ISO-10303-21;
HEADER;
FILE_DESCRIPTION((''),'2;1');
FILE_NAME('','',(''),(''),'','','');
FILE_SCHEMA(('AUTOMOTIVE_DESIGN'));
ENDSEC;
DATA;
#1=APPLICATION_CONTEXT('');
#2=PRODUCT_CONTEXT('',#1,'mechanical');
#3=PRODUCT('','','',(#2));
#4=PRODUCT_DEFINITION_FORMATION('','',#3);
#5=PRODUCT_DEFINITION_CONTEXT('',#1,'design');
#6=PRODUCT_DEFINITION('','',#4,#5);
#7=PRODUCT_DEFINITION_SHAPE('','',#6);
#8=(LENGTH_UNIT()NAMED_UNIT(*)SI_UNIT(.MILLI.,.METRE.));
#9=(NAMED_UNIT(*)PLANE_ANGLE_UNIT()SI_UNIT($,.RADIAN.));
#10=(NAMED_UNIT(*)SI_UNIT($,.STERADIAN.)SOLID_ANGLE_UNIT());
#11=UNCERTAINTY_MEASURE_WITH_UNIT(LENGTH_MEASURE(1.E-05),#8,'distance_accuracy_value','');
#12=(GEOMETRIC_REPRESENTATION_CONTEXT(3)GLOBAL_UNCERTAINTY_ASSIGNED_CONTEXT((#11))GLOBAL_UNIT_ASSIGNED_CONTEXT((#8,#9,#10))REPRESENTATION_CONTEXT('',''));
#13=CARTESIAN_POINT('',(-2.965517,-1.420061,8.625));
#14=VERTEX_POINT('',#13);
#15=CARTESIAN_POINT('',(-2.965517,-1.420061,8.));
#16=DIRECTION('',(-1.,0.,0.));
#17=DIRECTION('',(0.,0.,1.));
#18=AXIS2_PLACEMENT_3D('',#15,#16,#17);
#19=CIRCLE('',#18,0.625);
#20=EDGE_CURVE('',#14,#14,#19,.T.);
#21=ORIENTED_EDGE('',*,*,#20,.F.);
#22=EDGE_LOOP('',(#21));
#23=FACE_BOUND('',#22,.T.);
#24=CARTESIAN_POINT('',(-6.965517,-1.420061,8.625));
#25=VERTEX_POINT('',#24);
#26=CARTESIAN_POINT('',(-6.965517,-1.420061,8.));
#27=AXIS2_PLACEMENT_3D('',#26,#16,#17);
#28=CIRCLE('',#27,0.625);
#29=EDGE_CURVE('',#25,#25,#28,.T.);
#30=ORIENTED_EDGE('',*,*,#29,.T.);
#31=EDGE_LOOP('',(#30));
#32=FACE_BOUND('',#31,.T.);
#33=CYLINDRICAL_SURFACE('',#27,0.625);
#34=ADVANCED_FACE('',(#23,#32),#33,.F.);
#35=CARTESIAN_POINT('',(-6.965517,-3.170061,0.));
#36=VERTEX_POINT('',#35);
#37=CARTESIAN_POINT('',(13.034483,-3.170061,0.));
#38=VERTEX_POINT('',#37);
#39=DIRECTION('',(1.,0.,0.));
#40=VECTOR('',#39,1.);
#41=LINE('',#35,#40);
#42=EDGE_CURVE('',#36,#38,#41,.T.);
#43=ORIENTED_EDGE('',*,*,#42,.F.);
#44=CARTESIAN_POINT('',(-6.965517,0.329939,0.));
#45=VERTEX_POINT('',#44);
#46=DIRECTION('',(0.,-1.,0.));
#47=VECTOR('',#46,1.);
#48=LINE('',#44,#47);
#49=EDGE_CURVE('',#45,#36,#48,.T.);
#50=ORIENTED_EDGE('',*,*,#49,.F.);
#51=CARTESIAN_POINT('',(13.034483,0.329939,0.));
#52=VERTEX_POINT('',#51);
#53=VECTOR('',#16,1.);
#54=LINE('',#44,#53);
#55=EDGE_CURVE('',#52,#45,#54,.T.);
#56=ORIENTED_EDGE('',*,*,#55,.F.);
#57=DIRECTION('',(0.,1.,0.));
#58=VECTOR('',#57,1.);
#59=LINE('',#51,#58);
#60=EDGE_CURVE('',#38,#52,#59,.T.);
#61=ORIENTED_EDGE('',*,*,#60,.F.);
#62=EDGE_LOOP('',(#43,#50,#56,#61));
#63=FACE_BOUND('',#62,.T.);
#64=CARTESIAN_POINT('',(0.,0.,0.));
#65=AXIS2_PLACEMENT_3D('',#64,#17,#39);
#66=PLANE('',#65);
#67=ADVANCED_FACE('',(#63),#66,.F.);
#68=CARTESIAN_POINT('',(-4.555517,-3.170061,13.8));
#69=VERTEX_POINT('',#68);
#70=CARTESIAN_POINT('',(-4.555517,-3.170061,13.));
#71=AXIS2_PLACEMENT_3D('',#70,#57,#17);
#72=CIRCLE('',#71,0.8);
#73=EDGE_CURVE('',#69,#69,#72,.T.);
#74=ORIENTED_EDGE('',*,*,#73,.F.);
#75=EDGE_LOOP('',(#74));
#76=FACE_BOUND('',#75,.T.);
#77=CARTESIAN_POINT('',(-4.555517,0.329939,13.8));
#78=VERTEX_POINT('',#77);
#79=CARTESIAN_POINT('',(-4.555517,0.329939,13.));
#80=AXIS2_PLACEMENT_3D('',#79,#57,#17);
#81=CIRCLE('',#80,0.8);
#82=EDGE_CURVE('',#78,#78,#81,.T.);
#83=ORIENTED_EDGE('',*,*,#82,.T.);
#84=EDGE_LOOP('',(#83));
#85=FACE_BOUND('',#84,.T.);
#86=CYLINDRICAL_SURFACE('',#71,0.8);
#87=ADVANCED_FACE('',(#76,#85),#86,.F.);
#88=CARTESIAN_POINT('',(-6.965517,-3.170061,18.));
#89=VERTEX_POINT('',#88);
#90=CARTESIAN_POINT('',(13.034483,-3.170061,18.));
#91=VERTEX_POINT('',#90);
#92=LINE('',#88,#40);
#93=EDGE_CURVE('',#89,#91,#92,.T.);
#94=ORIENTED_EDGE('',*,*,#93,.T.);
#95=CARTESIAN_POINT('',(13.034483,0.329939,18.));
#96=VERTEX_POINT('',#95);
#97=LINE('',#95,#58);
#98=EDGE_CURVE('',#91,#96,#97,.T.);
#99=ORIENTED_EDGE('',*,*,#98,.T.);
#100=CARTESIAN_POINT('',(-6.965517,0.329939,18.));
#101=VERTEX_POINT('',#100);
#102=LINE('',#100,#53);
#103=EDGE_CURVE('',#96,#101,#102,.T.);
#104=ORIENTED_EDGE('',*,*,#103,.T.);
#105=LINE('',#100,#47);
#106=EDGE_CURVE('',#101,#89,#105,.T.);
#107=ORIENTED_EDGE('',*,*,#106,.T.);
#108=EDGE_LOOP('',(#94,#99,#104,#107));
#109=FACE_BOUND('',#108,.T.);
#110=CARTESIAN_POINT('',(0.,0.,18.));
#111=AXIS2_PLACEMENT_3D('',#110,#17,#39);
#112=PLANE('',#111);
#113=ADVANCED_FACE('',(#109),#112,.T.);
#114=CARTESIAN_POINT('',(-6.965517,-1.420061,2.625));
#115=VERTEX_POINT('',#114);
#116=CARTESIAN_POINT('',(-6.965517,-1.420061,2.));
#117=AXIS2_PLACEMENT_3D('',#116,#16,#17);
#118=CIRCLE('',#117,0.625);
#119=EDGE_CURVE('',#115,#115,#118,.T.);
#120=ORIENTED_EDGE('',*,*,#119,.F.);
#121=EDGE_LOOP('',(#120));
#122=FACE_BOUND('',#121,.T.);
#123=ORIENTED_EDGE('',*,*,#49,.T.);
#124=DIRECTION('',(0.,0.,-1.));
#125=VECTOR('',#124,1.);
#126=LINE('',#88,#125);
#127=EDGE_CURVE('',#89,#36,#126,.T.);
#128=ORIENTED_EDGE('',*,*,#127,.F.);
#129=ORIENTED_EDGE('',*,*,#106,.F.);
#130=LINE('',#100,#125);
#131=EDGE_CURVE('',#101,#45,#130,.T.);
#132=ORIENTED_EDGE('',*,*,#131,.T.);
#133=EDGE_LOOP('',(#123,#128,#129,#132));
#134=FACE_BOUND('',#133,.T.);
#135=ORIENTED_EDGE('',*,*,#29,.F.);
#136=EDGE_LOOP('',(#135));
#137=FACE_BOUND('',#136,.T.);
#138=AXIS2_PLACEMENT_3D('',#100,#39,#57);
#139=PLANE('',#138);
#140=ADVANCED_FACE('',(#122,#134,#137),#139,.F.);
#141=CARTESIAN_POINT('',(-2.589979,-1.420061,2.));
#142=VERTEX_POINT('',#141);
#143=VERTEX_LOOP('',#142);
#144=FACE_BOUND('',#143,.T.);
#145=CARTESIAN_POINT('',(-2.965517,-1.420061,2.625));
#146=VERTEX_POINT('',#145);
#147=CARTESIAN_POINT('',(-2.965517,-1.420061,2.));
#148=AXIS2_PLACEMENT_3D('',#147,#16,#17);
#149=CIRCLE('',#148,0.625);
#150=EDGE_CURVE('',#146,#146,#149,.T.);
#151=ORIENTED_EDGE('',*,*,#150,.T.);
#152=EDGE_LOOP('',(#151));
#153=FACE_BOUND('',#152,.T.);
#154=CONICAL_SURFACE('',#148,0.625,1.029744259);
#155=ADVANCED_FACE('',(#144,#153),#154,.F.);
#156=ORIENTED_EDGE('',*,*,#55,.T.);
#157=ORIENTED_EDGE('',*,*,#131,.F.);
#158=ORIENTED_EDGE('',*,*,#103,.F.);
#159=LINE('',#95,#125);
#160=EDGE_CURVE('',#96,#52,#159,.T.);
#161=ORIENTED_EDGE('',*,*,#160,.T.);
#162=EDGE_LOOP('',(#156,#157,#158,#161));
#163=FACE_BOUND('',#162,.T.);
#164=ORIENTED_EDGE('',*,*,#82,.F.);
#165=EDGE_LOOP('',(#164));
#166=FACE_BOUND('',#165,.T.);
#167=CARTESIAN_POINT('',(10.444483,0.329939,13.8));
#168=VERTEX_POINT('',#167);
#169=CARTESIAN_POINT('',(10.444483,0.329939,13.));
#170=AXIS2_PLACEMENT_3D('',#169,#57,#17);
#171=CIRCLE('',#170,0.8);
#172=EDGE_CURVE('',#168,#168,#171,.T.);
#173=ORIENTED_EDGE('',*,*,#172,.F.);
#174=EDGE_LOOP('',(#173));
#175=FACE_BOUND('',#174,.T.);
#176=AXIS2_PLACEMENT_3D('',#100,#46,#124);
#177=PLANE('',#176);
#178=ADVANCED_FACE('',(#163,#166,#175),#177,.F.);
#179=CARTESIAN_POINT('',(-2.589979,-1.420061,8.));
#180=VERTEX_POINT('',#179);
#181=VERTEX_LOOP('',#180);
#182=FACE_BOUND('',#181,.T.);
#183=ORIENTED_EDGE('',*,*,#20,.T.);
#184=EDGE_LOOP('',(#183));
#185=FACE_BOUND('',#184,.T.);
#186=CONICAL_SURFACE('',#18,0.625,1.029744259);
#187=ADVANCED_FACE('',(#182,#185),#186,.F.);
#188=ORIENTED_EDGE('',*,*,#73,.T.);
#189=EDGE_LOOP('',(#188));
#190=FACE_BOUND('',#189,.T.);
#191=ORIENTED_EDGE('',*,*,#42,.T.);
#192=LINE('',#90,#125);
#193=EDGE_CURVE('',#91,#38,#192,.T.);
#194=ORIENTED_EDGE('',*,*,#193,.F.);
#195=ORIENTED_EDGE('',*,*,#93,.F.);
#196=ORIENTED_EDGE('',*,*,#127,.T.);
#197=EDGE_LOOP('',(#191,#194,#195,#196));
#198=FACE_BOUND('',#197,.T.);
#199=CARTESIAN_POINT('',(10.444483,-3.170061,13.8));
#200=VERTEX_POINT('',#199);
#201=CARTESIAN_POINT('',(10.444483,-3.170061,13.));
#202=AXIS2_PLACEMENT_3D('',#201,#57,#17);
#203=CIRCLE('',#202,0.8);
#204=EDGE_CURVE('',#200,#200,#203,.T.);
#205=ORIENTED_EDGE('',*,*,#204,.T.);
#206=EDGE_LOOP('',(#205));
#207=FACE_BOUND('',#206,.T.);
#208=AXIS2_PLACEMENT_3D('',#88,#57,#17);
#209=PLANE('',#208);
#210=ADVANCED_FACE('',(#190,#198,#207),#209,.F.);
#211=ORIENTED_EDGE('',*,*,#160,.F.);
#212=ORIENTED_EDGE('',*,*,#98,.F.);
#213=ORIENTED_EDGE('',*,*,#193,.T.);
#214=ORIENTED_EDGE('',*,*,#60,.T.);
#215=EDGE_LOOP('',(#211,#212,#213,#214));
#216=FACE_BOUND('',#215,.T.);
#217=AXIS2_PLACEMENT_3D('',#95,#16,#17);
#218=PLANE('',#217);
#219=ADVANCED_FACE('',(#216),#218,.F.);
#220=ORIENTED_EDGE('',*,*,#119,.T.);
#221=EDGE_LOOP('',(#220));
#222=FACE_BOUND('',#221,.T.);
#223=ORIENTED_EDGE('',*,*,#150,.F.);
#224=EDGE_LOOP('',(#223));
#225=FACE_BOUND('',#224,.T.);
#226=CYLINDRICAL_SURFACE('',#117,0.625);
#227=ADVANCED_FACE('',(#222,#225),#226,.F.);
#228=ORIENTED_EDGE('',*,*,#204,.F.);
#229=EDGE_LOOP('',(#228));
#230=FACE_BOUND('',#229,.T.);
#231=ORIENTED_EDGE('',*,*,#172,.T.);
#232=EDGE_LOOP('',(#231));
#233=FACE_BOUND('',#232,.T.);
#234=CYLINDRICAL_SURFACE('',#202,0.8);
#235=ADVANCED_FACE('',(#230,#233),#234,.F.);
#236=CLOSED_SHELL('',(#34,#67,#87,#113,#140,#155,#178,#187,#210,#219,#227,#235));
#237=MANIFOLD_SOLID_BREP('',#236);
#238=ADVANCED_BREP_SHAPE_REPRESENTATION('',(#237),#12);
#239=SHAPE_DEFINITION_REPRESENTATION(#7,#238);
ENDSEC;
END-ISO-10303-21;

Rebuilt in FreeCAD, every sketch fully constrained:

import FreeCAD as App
import Part
import Sketcher
from FreeCAD import Vector
Q = App.Units.Quantity


def add_polygon(sketch, points):
    """Adds a closed chain of lines whose ends are joined by coincident constraints."""
    first, n = sketch.GeometryCount, len(points)
    for a, b in zip(points, points[1:] + points[:1]):
        sketch.addGeometry(Part.LineSegment(App.Vector(*a, 0), App.Vector(*b, 0)), False)
    for i in range(n):
        sketch.addConstraint(Sketcher.Constraint("Coincident", first + i, 2, first + (i + 1) % n, 1))

doc = App.newDocument("Part")
body = doc.addObject("PartDesign::Body", "Body")

# Sketch on XY plane
sketch1 = body.newObject("Sketcher::SketchObject", "Sketch")
sketch1.AttachmentSupport = (doc.getObject("XY_Plane"), [""])
sketch1.MapMode = "FlatFace"
add_polygon(sketch1, [(-6.965517, 0.329939), (-6.965517, -3.170061), (13.034483, -3.170061), (13.034483, 0.329939)])  # lines 0-3
sketch1.addConstraint([
    Sketcher.Constraint("Vertical", 0),
    Sketcher.Constraint("Horizontal", 1),
    Sketcher.Constraint("Vertical", 2),
    Sketcher.Constraint("Horizontal", 3),
    Sketcher.Constraint("DistanceX", 1, 1, 1, 2, Q("20 mm")),
    Sketcher.Constraint("DistanceY", 0, 2, 0, 1, Q("3.5 mm")),
    Sketcher.Constraint("DistanceY", 0, 2, -1, 1, Q("3.170061 mm")),
    Sketcher.Constraint("DistanceX", 0, 2, -1, 1, Q("6.965517 mm")),
])
pad1 = body.newObject("PartDesign::Pad", "Pad")
pad1.Profile = sketch1
pad1.Length = 18

# Sketch on XZ plane
sketch2 = body.newObject("Sketcher::SketchObject", "Sketch001")
sketch2.AttachmentSupport = (doc.getObject("XZ_Plane"), [""])
sketch2.MapMode = "FlatFace"
sketch2.AttachmentOffset = App.Placement(Vector(0, 0, -0.329939), App.Rotation())
sketch2.addGeometry([
    Part.Circle(Vector(-4.555517, 13, 0), Vector(0, 0, 1), 0.8),
    Part.Circle(Vector(10.444483, 13, 0), Vector(0, 0, 1), 0.8),
], False)
sketch2.addConstraint([
    Sketcher.Constraint("Equal", 0, 1),
    Sketcher.Constraint("Horizontal", 0, 3, 1, 3),
    Sketcher.Constraint("Diameter", 0, Q("1.6 mm")),
    Sketcher.Constraint("DistanceY", -1, 1, 0, 3, Q("13 mm")),
    Sketcher.Constraint("DistanceX", 0, 3, 1, 3, Q("15 mm")),
    Sketcher.Constraint("DistanceX", 0, 3, -1, 1, Q("4.555517 mm")),
])
pocket1 = body.newObject("PartDesign::Pocket", "Pocket")
pocket1.Profile = sketch2
pocket1.Type = "ThroughAll"
pocket1.Reversed = True

# Sketch on YZ plane
sketch3 = body.newObject("Sketcher::SketchObject", "Sketch002")
sketch3.AttachmentSupport = (doc.getObject("YZ_Plane"), [""])
sketch3.MapMode = "FlatFace"
sketch3.AttachmentOffset = App.Placement(Vector(0, 0, -6.965517), App.Rotation())
sketch3.addGeometry([
    Part.Circle(Vector(-1.420061, 2, 0), Vector(0, 0, 1), 0.625),
    Part.Circle(Vector(-1.420061, 8, 0), Vector(0, 0, 1), 0.625),
], False)
sketch3.addConstraint([
    Sketcher.Constraint("Equal", 0, 1),
    Sketcher.Constraint("Vertical", 0, 3, 1, 3),
    Sketcher.Constraint("Diameter", 0, Q("1.25 mm")),
    Sketcher.Constraint("DistanceY", -1, 1, 0, 3, Q("2 mm")),
    Sketcher.Constraint("DistanceY", -1, 1, 1, 3, Q("8 mm")),
    Sketcher.Constraint("DistanceX", 0, 3, -1, 1, Q("1.420061 mm")),
])
doc.recompute()
hole = body.newObject("PartDesign::Hole", "Hole")
hole.Profile = sketch3
hole.ThreadType = "None"
hole.Diameter = 1.25
hole.DepthType = "Dimension"
hole.Depth = 4
hole.DrillPoint = "Angled"
hole.DrillPointAngle = 118
hole.Reversed = True

doc.recompute()
